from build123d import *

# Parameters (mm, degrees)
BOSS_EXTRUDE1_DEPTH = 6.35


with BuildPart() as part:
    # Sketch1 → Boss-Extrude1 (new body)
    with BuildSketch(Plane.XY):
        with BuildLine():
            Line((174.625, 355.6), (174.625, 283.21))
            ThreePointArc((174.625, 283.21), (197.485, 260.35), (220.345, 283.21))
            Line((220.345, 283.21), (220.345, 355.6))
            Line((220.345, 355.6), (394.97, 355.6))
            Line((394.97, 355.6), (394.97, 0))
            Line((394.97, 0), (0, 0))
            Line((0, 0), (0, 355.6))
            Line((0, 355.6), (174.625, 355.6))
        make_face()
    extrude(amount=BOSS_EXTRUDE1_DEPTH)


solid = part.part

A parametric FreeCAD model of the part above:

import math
import FreeCAD as App
import Part
import Sketcher

V = App.Vector
Q = App.Units.Quantity

doc = App.newDocument("Part")
params = doc.addObject("Spreadsheet::Sheet", "Params")
for row, (alias, value) in enumerate([
    ("sketch1_radius", "0.9 in"),
    ("sketch1_height", "14 in"),
    ("sketch1_width", "15.55 in"),
    ("sketch1_height2", "2.85 in"),
    ("pad1_length", "0.25 in"),
], start=1):
    params.set(f"A{row}", alias)
    params.set(f"B{row}", "=" + value)
    params.setAlias(f"B{row}", alias)

body = doc.addObject("PartDesign::Body", "Body")

# Sketch on XY plane
sketch1 = body.newObject("Sketcher::SketchObject", "Sketch")
sketch1.AttachmentSupport = (doc.getObject("XY_Plane"), [""])
sketch1.MapMode = "FlatFace"
sketch1.addGeometry([
    Part.LineSegment(V(175, 283, 0), V(175, 356, 0)),  # 0
    Part.LineSegment(V(175, 356, 0), V(0, 356, 0)),  # 1
    Part.LineSegment(V(0, 356, 0), V(0, 0, 0)),  # 2
    Part.LineSegment(V(0, 0, 0), V(395, 0, 0)),  # 3
    Part.LineSegment(V(395, 0, 0), V(395, 356, 0)),  # 4
    Part.LineSegment(V(395, 356, 0), V(220, 356, 0)),  # 5
    Part.LineSegment(V(220, 356, 0), V(220, 283, 0)),  # 6
    Part.ArcOfCircle(Part.Circle(V(197, 283, 0), V(0, 0, 1), 23), math.radians(180), math.radians(360)),  # 7
], False)
sketch1.addConstraint([
    Sketcher.Constraint("Coincident", 0, 2, 1, 1),
    Sketcher.Constraint("Coincident", 1, 2, 2, 1),
    Sketcher.Constraint("Coincident", 2, 2, 3, 1),
    Sketcher.Constraint("Coincident", 3, 2, 4, 1),
    Sketcher.Constraint("Coincident", 4, 2, 5, 1),
    Sketcher.Constraint("Coincident", 5, 2, 6, 1),
    Sketcher.Constraint("Tangent", 6, 2, 7, 2),
    Sketcher.Constraint("Tangent", 7, 1, 0, 1),
    Sketcher.Constraint("Vertical", 0),
    Sketcher.Constraint("Horizontal", 1),
    Sketcher.Constraint("Vertical", 2),
    Sketcher.Constraint("Horizontal", 3),
    Sketcher.Constraint("Vertical", 4),
    Sketcher.Constraint("Horizontal", 5),
    Sketcher.Constraint("Vertical", 6),
    Sketcher.Constraint("Coincident", 2, 2, -1, 1),
    Sketcher.Constraint("Horizontal", 1, 2, 4, 2),
    Sketcher.Constraint("Equal", 1, 5),
    Sketcher.Constraint("Radius", 7, Q("0.9 in")),
    Sketcher.Constraint("DistanceY", 2, 2, 2, 1, Q("14 in")),
    Sketcher.Constraint("DistanceX", 3, 1, 3, 2, Q("15.55 in")),
    Sketcher.Constraint("DistanceY", 0, 1, 0, 2, Q("2.85 in")),
])
sketch1.setExpression("Constraints[18]", "Params.sketch1_radius")
sketch1.setExpression("Constraints[19]", "Params.sketch1_height")
sketch1.setExpression("Constraints[20]", "Params.sketch1_width")
sketch1.setExpression("Constraints[21]", "Params.sketch1_height2")
pad1 = body.newObject("PartDesign::Pad", "Pad")
pad1.Profile = sketch1
pad1.setExpression("Length", "Params.pad1_length")

doc.recompute()
